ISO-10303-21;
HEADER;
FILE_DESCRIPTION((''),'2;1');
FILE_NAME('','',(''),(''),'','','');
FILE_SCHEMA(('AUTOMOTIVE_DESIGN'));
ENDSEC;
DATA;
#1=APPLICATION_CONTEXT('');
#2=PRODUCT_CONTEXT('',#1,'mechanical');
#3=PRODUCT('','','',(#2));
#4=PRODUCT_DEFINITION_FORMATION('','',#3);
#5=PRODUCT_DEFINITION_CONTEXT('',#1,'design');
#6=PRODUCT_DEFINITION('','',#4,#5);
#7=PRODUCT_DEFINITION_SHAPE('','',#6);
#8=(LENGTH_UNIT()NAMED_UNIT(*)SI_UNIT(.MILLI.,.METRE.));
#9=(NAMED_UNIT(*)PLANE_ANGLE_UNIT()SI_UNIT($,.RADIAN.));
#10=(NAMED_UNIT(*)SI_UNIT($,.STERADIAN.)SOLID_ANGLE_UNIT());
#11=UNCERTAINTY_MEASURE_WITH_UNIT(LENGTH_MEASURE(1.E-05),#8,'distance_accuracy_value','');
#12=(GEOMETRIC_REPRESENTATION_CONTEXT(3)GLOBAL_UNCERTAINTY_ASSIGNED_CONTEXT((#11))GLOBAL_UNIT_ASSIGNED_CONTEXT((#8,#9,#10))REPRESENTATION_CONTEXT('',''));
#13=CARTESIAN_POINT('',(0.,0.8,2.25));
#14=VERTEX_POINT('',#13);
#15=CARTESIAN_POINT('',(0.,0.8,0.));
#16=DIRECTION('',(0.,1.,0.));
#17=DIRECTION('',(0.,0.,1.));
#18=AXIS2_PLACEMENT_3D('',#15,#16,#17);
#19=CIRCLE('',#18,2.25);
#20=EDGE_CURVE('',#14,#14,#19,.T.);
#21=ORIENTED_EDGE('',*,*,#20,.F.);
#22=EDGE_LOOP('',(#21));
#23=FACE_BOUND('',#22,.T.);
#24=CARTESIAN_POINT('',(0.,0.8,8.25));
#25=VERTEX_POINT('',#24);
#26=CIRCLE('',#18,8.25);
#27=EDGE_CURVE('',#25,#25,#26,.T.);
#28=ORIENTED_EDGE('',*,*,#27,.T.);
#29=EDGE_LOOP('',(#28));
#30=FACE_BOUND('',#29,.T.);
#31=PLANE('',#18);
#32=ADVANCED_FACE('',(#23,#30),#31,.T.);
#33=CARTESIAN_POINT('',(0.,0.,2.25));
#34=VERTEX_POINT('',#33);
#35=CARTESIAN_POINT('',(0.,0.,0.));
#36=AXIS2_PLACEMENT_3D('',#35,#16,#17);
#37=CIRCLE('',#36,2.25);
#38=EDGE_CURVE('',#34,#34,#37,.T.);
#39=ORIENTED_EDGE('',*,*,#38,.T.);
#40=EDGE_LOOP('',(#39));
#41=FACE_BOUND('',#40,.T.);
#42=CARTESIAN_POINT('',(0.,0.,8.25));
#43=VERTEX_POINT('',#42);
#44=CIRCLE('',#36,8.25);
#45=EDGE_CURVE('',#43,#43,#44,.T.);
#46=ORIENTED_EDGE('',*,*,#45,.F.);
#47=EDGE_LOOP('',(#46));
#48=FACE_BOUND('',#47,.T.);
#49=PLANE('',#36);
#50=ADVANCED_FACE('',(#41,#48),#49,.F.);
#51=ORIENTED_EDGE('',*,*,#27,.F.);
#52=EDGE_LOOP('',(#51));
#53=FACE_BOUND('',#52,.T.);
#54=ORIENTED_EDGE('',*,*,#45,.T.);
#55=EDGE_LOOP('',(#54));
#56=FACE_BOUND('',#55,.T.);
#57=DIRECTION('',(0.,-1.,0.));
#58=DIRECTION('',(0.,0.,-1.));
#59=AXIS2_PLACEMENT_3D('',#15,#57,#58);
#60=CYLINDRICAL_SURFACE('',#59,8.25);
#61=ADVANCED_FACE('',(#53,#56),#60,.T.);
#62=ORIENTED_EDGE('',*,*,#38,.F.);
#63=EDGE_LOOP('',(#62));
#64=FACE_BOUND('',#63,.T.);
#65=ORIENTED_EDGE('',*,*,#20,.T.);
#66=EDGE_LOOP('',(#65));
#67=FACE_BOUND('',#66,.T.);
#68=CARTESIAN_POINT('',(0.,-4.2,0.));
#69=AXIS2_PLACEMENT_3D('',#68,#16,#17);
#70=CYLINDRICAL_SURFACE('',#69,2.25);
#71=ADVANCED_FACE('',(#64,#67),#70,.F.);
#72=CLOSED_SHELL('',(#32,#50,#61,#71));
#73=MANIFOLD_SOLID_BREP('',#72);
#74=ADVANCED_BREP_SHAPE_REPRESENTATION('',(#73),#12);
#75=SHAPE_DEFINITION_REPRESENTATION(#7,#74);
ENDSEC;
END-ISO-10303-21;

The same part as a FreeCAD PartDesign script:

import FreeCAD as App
import Part
import Sketcher
Q = App.Units.Quantity

doc = App.newDocument("Part")
params = doc.addObject("Spreadsheet::Sheet", "Params")
for row, (alias, value) in enumerate([
    ("sketch1_diameter", "16.5 mm"),
    ("pad1_length", "0.8 mm"),
    ("sketch2_diameter", "4.5 mm"),
    ("pocket1_length", "5 mm"),
], start=1):
    params.set(f"A{row}", alias)
    params.set(f"B{row}", "=" + value)
    params.setAlias(f"B{row}", alias)

body = doc.addObject("PartDesign::Body", "Body")

sketch1 = body.newObject("Sketcher::SketchObject", "Sketch")
sketch1.AttachmentSupport = (doc.getObject("XZ_Plane"), [""])
sketch1.MapMode = "FlatFace"
sketch1.addGeometry(Part.Circle(App.Vector(0, 0, 0), App.Vector(0, 0, 1), 8), False)
sketch1.addConstraint(Sketcher.Constraint("Coincident", 0, 3, -1, 1))
sketch1.addConstraint(Sketcher.Constraint("Diameter", 0, Q("16.5 mm")))
sketch1.setExpression("Constraints[1]", "Params.sketch1_diameter")
pad1 = body.newObject("PartDesign::Pad", "Pad")
pad1.Profile = sketch1
pad1.setExpression("Length", "Params.pad1_length")
pad1.Reversed = True

sketch2 = body.newObject("Sketcher::SketchObject", "Sketch001")
sketch2.AttachmentSupport = (doc.getObject("XZ_Plane"), [""])
sketch2.MapMode = "FlatFace"
sketch2.AttachmentOffset = App.Placement(App.Vector(0, 0, -0.8), App.Rotation())
sketch2.addGeometry(Part.Circle(App.Vector(0, 0, 0), App.Vector(0, 0, 1), 2.2), False)
sketch2.addConstraint(Sketcher.Constraint("Coincident", 0, 3, -1, 1))
sketch2.addConstraint(Sketcher.Constraint("Diameter", 0, Q("4.5 mm")))
sketch2.setExpression("Constraints[1]", "Params.sketch2_diameter")
pocket1 = body.newObject("PartDesign::Pocket", "Pocket")
pocket1.Profile = sketch2
pocket1.setExpression("Length", "Params.pocket1_length")
pocket1.Reversed = True

doc.recompute()
